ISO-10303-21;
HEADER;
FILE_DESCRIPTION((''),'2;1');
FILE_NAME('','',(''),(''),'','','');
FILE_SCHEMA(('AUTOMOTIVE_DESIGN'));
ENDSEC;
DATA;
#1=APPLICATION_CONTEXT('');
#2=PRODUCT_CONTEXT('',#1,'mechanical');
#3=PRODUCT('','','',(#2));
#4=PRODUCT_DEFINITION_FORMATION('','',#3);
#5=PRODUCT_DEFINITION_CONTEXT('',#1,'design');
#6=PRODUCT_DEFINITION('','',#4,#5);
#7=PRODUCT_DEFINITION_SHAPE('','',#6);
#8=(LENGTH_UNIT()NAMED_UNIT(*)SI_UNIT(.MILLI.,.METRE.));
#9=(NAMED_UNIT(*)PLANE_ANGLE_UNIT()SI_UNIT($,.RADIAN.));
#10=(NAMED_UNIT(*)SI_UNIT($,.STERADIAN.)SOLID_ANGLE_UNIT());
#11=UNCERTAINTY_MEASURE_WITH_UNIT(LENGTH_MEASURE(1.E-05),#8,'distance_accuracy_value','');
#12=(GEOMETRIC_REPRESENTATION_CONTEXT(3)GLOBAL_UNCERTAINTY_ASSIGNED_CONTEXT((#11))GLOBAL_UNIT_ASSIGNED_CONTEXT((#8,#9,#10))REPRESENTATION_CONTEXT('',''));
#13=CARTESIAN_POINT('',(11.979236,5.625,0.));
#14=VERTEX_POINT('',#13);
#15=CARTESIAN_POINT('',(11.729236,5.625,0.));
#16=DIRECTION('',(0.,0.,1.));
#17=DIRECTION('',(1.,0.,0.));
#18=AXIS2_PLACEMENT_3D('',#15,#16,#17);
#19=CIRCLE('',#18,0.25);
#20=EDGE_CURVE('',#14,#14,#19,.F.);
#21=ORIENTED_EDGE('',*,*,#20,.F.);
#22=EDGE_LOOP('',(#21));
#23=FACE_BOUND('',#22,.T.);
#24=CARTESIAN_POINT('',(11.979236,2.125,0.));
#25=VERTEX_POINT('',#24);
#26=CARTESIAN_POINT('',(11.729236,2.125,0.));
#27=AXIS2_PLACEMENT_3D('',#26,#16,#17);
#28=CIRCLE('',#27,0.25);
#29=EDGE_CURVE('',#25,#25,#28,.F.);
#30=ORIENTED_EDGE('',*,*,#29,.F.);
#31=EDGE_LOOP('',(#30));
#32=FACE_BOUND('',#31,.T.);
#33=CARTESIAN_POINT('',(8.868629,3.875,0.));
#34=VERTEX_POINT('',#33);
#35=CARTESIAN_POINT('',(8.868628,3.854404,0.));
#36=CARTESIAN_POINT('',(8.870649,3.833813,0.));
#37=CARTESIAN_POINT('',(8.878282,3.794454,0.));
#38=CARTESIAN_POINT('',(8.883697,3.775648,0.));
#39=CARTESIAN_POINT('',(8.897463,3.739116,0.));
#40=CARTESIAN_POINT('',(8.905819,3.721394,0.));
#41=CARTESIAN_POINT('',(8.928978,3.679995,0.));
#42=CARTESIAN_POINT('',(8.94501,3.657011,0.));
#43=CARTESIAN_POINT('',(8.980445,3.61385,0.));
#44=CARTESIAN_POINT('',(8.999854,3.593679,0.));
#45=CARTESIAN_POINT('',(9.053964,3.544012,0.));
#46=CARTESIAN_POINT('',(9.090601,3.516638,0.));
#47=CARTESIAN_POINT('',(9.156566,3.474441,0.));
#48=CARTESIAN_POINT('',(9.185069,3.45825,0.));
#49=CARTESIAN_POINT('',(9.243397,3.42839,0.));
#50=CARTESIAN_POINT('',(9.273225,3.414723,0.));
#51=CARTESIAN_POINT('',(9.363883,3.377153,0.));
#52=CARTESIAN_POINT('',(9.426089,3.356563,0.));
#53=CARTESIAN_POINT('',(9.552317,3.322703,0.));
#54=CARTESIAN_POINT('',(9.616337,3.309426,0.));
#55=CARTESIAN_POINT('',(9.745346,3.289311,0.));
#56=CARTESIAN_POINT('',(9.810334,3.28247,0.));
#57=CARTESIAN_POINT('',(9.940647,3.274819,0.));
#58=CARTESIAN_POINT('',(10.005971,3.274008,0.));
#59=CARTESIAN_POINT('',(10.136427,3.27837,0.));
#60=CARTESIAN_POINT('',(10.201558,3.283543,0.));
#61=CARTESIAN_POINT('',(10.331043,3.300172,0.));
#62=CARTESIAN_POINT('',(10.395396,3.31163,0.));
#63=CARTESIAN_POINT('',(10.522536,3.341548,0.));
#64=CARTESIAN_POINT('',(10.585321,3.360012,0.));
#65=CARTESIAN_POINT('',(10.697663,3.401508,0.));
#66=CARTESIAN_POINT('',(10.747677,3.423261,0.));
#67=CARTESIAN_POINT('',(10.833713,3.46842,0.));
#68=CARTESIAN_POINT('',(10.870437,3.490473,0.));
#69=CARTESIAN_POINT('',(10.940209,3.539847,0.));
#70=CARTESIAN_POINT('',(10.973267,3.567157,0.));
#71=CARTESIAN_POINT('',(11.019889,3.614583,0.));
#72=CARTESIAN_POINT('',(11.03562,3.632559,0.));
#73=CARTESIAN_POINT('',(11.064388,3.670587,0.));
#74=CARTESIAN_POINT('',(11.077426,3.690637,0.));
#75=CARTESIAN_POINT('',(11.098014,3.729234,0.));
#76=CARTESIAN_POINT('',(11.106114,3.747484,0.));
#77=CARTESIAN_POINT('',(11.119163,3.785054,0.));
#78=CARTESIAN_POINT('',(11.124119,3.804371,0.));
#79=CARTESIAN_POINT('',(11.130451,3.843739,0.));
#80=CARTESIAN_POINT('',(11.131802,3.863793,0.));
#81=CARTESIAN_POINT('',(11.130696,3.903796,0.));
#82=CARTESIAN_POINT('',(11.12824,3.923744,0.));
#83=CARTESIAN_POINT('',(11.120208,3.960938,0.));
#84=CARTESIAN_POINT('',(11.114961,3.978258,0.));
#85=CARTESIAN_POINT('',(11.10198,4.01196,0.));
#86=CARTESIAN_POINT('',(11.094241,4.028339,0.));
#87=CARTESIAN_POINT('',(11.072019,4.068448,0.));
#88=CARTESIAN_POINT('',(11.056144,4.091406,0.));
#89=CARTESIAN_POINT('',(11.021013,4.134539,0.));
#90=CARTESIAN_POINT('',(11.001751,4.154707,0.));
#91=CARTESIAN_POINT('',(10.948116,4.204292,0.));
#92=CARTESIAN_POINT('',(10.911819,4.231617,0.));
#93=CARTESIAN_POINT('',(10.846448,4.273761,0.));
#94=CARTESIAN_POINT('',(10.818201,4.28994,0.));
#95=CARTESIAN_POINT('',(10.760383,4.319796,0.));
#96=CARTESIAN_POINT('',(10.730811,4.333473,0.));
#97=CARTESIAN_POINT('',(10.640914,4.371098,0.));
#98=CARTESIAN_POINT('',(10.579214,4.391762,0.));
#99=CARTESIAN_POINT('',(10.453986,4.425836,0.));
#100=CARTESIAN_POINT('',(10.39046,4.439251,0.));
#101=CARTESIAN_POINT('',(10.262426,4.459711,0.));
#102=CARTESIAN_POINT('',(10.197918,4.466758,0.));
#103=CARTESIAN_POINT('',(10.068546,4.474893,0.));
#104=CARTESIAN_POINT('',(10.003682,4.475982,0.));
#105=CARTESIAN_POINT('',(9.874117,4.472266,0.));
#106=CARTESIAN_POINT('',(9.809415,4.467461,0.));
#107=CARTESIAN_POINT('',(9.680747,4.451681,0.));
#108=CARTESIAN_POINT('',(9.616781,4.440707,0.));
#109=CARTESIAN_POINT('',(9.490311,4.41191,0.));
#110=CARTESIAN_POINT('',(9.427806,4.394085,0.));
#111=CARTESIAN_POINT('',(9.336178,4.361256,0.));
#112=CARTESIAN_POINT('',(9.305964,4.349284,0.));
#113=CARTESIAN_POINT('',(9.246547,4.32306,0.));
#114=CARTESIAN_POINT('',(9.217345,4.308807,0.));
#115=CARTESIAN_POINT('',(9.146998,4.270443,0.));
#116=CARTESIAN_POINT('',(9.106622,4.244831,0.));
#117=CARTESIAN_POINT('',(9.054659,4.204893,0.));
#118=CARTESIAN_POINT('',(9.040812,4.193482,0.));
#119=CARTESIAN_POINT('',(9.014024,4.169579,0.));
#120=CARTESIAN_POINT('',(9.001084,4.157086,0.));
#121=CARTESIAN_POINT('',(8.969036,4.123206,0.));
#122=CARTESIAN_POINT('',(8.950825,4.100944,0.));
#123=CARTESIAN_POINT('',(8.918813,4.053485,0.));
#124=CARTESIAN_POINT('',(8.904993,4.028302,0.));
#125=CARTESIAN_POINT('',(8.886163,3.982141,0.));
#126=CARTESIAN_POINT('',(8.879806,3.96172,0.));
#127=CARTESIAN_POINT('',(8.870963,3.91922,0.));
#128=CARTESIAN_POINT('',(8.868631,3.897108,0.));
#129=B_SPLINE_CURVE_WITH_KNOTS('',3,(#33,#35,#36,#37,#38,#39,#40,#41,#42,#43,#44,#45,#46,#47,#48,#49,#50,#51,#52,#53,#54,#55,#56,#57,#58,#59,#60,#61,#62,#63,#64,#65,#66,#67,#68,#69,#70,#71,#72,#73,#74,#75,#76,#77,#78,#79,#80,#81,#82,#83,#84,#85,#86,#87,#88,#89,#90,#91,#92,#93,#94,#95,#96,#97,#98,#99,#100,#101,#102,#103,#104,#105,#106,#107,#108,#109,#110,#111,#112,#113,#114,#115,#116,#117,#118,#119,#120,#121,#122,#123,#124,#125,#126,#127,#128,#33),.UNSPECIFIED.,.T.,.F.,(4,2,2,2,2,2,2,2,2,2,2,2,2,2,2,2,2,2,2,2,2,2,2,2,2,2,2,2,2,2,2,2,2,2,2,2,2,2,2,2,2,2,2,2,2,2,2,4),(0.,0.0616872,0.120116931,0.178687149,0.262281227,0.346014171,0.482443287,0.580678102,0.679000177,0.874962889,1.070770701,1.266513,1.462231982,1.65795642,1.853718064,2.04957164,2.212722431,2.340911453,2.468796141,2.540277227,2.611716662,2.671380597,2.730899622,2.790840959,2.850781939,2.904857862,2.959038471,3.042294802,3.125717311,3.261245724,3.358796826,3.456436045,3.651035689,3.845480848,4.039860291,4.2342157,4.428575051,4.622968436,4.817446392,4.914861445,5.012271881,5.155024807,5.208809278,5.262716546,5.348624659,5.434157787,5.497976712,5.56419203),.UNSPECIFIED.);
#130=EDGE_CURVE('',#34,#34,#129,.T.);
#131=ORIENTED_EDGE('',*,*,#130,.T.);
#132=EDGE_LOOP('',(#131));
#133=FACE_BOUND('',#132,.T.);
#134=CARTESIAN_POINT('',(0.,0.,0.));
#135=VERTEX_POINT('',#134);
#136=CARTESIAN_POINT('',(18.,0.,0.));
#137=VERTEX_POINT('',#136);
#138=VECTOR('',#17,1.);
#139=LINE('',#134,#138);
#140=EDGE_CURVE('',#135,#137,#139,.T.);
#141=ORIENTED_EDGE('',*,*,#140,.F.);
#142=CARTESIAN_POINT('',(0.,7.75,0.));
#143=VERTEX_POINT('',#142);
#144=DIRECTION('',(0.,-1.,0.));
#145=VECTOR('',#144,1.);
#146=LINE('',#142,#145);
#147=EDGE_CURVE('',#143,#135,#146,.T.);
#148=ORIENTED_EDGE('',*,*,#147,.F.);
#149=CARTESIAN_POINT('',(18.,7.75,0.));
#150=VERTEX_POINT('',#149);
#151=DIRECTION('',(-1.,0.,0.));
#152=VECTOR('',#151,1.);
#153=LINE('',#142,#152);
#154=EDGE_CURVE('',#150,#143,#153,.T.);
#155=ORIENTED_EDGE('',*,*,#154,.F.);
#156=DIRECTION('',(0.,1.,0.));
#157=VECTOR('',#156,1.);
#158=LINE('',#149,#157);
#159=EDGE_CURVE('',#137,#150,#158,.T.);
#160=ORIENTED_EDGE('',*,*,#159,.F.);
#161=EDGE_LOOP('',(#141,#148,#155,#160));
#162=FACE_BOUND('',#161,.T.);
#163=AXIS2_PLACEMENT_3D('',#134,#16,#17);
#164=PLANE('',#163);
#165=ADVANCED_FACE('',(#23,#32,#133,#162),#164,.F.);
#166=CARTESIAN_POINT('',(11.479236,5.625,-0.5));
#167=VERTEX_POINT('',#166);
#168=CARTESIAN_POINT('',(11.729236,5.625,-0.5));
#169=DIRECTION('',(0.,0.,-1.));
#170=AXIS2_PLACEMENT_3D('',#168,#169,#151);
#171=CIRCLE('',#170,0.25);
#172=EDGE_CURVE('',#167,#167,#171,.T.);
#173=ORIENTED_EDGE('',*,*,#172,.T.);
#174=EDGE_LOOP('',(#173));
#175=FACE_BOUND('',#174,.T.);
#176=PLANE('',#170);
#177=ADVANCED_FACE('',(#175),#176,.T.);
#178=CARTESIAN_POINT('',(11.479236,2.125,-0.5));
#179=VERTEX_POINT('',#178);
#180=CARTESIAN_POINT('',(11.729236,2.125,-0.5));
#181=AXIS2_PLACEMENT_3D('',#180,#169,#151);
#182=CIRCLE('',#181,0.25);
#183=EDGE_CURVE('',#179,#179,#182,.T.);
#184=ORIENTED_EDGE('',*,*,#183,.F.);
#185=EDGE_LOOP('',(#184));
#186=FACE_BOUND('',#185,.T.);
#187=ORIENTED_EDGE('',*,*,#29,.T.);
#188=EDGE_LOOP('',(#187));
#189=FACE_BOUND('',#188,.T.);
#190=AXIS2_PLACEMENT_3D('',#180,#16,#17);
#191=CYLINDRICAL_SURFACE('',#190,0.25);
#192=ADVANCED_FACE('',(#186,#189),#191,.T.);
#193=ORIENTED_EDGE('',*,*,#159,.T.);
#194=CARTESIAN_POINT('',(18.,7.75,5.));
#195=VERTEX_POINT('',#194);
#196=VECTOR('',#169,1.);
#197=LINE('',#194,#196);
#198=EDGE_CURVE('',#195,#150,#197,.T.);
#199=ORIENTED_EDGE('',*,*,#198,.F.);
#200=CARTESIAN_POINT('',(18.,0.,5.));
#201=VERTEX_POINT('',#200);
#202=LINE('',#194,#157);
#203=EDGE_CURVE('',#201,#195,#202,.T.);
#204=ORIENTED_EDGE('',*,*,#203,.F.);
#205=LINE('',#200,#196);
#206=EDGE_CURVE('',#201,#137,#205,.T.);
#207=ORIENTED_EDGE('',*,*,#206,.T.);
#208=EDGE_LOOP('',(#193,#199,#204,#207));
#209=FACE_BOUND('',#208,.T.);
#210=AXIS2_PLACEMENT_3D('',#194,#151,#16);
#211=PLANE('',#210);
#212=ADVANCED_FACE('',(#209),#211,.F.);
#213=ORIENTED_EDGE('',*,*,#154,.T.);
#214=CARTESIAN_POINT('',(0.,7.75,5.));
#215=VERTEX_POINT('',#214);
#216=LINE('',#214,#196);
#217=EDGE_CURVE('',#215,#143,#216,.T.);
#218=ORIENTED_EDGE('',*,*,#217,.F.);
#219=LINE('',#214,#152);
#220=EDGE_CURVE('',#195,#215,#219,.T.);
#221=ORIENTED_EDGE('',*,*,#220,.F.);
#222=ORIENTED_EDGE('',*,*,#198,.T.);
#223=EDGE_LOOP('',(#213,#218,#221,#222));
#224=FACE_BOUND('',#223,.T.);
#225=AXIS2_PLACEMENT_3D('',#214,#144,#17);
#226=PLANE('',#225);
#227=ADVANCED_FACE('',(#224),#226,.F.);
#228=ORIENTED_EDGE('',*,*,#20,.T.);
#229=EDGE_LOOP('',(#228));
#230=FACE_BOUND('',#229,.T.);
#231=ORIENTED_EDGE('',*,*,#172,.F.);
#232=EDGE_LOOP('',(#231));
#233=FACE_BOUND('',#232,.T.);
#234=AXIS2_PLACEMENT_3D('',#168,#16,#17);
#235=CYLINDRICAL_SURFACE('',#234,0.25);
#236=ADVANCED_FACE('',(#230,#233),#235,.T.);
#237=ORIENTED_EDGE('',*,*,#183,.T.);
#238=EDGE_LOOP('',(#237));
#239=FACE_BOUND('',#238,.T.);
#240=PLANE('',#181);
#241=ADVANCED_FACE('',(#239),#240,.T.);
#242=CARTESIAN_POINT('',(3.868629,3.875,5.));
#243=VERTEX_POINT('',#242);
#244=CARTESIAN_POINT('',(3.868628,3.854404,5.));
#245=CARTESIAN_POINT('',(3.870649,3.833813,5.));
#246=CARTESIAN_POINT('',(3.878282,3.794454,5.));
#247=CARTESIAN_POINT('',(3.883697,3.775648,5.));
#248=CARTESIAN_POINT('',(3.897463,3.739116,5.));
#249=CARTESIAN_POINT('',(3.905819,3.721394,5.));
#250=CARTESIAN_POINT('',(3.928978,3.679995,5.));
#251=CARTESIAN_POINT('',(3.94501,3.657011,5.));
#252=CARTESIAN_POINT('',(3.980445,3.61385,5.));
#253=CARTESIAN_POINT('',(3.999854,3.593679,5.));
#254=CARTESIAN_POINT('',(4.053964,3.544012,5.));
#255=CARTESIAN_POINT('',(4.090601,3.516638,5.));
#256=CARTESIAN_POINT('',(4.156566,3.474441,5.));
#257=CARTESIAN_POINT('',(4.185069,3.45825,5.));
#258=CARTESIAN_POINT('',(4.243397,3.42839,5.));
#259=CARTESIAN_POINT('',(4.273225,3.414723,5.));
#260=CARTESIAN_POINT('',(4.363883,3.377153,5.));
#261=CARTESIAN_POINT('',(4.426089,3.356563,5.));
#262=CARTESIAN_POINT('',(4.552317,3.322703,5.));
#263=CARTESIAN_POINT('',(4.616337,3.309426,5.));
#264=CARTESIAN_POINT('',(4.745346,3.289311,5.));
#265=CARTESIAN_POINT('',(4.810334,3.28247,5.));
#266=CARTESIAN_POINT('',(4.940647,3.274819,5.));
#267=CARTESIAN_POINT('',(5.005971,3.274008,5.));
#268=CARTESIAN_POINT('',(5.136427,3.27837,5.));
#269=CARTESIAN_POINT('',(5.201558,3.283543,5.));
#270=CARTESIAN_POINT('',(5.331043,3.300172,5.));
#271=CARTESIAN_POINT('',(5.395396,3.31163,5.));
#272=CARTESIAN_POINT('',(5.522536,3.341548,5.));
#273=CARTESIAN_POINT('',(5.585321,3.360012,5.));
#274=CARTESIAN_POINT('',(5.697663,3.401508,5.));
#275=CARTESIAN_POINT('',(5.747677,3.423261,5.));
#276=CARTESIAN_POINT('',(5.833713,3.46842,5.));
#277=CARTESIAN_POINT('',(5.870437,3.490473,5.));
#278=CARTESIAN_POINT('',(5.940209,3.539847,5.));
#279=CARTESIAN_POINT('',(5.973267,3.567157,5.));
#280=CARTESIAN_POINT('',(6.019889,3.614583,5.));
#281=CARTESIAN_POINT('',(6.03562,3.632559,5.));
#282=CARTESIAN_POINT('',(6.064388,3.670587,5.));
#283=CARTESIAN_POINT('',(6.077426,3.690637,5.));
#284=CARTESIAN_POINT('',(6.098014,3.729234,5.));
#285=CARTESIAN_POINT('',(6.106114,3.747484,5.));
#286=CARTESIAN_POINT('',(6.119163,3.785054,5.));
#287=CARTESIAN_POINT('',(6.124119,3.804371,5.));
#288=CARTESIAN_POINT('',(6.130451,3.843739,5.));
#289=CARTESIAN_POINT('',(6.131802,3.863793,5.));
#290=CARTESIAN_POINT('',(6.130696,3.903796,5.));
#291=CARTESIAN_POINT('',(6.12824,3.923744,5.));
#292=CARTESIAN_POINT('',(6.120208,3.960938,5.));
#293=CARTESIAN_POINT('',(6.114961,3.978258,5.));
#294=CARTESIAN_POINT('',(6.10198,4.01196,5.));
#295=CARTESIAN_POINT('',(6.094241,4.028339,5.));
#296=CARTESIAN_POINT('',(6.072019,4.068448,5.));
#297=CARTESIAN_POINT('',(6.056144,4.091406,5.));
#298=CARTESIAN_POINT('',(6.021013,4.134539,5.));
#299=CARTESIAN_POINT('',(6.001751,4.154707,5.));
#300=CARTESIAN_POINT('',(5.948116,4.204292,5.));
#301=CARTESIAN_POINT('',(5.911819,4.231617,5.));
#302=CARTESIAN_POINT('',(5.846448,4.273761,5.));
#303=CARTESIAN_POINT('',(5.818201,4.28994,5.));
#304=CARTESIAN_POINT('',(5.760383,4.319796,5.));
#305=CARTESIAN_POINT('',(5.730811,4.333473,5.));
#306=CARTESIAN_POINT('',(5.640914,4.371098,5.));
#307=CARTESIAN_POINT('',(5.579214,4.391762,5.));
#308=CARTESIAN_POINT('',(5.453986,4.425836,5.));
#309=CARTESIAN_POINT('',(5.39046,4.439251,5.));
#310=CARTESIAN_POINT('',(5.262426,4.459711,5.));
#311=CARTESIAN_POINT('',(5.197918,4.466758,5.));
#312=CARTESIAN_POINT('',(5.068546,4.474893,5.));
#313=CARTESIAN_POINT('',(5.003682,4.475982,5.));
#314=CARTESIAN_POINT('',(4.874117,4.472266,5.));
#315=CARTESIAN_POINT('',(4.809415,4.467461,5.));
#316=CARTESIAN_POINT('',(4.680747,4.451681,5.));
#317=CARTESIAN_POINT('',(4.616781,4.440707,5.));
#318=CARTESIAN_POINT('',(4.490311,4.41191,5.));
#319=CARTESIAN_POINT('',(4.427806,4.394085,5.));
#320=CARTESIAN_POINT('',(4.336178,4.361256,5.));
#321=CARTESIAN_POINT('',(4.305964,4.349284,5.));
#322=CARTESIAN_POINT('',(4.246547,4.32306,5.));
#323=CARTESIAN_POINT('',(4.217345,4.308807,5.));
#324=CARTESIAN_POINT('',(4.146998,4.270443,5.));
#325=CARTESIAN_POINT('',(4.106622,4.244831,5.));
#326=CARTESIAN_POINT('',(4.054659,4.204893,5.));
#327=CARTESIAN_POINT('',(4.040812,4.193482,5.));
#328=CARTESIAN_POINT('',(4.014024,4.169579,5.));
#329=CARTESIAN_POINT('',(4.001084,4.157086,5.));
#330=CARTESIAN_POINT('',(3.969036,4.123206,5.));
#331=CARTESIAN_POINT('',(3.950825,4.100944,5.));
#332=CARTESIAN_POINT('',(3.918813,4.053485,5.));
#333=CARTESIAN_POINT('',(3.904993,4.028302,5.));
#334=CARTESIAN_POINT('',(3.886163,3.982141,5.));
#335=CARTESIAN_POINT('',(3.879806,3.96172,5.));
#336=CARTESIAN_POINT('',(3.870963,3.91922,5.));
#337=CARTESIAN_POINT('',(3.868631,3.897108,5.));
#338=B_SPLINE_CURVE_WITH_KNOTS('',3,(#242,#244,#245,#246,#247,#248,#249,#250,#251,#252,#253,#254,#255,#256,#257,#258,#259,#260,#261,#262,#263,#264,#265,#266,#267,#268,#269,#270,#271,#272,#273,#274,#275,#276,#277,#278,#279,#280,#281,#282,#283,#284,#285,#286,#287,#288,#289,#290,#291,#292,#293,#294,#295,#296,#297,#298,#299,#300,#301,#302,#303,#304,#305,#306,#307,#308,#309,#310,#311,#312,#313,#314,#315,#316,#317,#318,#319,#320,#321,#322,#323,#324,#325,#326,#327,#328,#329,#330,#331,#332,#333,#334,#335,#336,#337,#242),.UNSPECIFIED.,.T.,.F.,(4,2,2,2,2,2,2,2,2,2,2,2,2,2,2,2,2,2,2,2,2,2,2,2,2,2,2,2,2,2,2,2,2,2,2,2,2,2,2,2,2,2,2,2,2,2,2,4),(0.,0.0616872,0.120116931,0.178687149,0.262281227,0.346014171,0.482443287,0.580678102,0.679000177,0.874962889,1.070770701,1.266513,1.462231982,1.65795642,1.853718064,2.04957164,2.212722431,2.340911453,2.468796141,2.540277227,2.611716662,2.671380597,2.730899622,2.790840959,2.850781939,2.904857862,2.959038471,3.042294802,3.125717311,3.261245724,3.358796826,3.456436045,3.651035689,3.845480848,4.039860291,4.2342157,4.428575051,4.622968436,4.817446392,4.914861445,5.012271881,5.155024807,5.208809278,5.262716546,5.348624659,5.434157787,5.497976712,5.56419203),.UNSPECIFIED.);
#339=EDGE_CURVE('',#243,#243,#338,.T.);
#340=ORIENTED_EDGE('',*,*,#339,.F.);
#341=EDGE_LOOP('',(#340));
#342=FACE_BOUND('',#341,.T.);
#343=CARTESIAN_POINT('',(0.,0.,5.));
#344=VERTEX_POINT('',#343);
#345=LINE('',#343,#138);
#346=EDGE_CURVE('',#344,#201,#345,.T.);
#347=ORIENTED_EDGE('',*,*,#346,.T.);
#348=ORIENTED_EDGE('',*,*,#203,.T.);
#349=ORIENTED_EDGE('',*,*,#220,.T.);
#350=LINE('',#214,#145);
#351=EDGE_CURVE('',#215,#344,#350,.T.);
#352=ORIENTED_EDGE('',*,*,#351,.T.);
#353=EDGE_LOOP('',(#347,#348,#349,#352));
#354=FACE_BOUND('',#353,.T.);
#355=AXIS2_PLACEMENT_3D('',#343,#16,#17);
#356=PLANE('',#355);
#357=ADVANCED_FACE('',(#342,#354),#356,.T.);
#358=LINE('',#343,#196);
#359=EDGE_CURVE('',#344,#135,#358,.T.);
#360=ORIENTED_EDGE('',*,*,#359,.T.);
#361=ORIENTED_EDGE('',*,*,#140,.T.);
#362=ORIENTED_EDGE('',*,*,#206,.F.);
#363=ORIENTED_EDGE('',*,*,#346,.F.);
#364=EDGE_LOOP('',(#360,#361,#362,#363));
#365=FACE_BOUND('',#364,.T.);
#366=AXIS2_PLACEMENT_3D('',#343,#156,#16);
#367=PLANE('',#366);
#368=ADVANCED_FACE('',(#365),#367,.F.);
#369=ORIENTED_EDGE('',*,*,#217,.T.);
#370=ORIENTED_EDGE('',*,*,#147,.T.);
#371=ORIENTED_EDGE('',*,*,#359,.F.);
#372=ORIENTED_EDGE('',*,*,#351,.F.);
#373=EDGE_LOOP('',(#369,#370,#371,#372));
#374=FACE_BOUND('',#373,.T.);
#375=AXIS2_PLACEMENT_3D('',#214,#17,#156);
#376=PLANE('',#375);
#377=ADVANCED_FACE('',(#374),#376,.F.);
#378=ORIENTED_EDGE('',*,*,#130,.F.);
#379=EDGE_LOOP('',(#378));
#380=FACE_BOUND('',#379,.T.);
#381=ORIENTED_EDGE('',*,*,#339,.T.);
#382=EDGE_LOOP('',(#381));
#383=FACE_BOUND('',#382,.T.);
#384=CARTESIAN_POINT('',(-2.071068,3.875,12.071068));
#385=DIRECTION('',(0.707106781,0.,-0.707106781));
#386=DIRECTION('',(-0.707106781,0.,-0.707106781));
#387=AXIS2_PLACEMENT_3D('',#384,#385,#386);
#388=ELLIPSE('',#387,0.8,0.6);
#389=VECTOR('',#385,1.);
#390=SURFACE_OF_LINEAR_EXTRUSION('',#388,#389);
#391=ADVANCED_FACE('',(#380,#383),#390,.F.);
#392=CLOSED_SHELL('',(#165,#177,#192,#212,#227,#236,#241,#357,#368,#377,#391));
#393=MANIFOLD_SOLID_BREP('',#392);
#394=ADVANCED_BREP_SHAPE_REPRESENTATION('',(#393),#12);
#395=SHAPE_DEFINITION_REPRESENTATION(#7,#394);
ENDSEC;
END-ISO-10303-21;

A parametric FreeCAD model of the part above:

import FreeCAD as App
import Part
import Sketcher

doc = App.newDocument("Part")
body = doc.addObject("PartDesign::Body", "Body")

# Sketch on XY plane
sketch1 = body.newObject("Sketcher::SketchObject", "Sketch")
sketch1.AttachmentSupport = (doc.getObject("XY_Plane"), [""])
sketch1.MapMode = "FlatFace"
sketch1.addGeometry([
    Part.LineSegment(App.Vector(0, 8, 0), App.Vector(0, 0, 0)),
    Part.LineSegment(App.Vector(0, 0, 0), App.Vector(18, 0, 0)),
    Part.LineSegment(App.Vector(18, 0, 0), App.Vector(18, 8, 0)),
    Part.LineSegment(App.Vector(18, 8, 0), App.Vector(0, 8, 0)),
], False)
sketch1.addConstraint([
    Sketcher.Constraint("Coincident", 0, 2, 1, 1),
    Sketcher.Constraint("Coincident", 1, 2, 2, 1),
    Sketcher.Constraint("Coincident", 2, 2, 3, 1),
    Sketcher.Constraint("Coincident", 3, 2, 0, 1),
    Sketcher.Constraint("Vertical", 0),
    Sketcher.Constraint("Horizontal", 1),
    Sketcher.Constraint("Vertical", 2),
    Sketcher.Constraint("Horizontal", 3),
    Sketcher.Constraint("Coincident", 0, 2, -1, 1),
    Sketcher.Constraint("DistanceX", 1, 1, 1, 2, 18.0),
    Sketcher.Constraint("DistanceY", 0, 2, 0, 1, 7.75),
])
pad1 = body.newObject("PartDesign::Pad", "Pad")
pad1.Profile = sketch1
pad1.Length = 5

# Sketch on an angled plane
sketch2 = body.newObject("Sketcher::SketchObject", "Sketch001")
sketch2.Placement = App.Placement(App.Vector(5, 3.875, 5), App.Rotation(App.Vector(-0.707106781, 0, -0.707106781), App.Vector(0, 0.999999999, 0), App.Vector(0.707106781, 0, -0.707106781), "ZXY"))
sketch2.addGeometry(Part.Ellipse(App.Vector(0.8, 0, 0), App.Vector(0, 0.6, 0), App.Vector(0, 0, 0)), False)
sketch2.addConstraint(Sketcher.Constraint("Block", 0))
pocket1 = body.newObject("PartDesign::Pocket", "Pocket")
pocket1.Profile = sketch2
pocket1.Type = "ThroughAll"
pocket1.Midplane = True

# Sketch on XY plane
sketch3 = body.newObject("Sketcher::SketchObject", "Sketch002")
sketch3.AttachmentSupport = (doc.getObject("XY_Plane"), [""])
sketch3.MapMode = "FlatFace"
sketch3.addGeometry([
    Part.Circle(App.Vector(11.73, 2.12, 0), App.Vector(0, 0, 1), 0.25),
    Part.Circle(App.Vector(11.73, 5.62, 0), App.Vector(0, 0, 1), 0.25),
], False)
sketch3.addConstraint([
    Sketcher.Constraint("Equal", 0, 1),
    Sketcher.Constraint("Vertical", 0, 3, 1, 3),
    Sketcher.Constraint("Diameter", 0, 0.5),
    Sketcher.Constraint("DistanceY", 0, 3, 1, 3, 3.5),
    Sketcher.Constraint("DistanceY", -1, 1, 0, 3, 2.125),
    Sketcher.Constraint("DistanceX", -1, 1, 0, 3, 11.729236),
])
pad2 = body.newObject("PartDesign::Pad", "Pad001")
pad2.Profile = sketch3
pad2.Length = 0.5
pad2.Reversed = True

doc.recompute()
